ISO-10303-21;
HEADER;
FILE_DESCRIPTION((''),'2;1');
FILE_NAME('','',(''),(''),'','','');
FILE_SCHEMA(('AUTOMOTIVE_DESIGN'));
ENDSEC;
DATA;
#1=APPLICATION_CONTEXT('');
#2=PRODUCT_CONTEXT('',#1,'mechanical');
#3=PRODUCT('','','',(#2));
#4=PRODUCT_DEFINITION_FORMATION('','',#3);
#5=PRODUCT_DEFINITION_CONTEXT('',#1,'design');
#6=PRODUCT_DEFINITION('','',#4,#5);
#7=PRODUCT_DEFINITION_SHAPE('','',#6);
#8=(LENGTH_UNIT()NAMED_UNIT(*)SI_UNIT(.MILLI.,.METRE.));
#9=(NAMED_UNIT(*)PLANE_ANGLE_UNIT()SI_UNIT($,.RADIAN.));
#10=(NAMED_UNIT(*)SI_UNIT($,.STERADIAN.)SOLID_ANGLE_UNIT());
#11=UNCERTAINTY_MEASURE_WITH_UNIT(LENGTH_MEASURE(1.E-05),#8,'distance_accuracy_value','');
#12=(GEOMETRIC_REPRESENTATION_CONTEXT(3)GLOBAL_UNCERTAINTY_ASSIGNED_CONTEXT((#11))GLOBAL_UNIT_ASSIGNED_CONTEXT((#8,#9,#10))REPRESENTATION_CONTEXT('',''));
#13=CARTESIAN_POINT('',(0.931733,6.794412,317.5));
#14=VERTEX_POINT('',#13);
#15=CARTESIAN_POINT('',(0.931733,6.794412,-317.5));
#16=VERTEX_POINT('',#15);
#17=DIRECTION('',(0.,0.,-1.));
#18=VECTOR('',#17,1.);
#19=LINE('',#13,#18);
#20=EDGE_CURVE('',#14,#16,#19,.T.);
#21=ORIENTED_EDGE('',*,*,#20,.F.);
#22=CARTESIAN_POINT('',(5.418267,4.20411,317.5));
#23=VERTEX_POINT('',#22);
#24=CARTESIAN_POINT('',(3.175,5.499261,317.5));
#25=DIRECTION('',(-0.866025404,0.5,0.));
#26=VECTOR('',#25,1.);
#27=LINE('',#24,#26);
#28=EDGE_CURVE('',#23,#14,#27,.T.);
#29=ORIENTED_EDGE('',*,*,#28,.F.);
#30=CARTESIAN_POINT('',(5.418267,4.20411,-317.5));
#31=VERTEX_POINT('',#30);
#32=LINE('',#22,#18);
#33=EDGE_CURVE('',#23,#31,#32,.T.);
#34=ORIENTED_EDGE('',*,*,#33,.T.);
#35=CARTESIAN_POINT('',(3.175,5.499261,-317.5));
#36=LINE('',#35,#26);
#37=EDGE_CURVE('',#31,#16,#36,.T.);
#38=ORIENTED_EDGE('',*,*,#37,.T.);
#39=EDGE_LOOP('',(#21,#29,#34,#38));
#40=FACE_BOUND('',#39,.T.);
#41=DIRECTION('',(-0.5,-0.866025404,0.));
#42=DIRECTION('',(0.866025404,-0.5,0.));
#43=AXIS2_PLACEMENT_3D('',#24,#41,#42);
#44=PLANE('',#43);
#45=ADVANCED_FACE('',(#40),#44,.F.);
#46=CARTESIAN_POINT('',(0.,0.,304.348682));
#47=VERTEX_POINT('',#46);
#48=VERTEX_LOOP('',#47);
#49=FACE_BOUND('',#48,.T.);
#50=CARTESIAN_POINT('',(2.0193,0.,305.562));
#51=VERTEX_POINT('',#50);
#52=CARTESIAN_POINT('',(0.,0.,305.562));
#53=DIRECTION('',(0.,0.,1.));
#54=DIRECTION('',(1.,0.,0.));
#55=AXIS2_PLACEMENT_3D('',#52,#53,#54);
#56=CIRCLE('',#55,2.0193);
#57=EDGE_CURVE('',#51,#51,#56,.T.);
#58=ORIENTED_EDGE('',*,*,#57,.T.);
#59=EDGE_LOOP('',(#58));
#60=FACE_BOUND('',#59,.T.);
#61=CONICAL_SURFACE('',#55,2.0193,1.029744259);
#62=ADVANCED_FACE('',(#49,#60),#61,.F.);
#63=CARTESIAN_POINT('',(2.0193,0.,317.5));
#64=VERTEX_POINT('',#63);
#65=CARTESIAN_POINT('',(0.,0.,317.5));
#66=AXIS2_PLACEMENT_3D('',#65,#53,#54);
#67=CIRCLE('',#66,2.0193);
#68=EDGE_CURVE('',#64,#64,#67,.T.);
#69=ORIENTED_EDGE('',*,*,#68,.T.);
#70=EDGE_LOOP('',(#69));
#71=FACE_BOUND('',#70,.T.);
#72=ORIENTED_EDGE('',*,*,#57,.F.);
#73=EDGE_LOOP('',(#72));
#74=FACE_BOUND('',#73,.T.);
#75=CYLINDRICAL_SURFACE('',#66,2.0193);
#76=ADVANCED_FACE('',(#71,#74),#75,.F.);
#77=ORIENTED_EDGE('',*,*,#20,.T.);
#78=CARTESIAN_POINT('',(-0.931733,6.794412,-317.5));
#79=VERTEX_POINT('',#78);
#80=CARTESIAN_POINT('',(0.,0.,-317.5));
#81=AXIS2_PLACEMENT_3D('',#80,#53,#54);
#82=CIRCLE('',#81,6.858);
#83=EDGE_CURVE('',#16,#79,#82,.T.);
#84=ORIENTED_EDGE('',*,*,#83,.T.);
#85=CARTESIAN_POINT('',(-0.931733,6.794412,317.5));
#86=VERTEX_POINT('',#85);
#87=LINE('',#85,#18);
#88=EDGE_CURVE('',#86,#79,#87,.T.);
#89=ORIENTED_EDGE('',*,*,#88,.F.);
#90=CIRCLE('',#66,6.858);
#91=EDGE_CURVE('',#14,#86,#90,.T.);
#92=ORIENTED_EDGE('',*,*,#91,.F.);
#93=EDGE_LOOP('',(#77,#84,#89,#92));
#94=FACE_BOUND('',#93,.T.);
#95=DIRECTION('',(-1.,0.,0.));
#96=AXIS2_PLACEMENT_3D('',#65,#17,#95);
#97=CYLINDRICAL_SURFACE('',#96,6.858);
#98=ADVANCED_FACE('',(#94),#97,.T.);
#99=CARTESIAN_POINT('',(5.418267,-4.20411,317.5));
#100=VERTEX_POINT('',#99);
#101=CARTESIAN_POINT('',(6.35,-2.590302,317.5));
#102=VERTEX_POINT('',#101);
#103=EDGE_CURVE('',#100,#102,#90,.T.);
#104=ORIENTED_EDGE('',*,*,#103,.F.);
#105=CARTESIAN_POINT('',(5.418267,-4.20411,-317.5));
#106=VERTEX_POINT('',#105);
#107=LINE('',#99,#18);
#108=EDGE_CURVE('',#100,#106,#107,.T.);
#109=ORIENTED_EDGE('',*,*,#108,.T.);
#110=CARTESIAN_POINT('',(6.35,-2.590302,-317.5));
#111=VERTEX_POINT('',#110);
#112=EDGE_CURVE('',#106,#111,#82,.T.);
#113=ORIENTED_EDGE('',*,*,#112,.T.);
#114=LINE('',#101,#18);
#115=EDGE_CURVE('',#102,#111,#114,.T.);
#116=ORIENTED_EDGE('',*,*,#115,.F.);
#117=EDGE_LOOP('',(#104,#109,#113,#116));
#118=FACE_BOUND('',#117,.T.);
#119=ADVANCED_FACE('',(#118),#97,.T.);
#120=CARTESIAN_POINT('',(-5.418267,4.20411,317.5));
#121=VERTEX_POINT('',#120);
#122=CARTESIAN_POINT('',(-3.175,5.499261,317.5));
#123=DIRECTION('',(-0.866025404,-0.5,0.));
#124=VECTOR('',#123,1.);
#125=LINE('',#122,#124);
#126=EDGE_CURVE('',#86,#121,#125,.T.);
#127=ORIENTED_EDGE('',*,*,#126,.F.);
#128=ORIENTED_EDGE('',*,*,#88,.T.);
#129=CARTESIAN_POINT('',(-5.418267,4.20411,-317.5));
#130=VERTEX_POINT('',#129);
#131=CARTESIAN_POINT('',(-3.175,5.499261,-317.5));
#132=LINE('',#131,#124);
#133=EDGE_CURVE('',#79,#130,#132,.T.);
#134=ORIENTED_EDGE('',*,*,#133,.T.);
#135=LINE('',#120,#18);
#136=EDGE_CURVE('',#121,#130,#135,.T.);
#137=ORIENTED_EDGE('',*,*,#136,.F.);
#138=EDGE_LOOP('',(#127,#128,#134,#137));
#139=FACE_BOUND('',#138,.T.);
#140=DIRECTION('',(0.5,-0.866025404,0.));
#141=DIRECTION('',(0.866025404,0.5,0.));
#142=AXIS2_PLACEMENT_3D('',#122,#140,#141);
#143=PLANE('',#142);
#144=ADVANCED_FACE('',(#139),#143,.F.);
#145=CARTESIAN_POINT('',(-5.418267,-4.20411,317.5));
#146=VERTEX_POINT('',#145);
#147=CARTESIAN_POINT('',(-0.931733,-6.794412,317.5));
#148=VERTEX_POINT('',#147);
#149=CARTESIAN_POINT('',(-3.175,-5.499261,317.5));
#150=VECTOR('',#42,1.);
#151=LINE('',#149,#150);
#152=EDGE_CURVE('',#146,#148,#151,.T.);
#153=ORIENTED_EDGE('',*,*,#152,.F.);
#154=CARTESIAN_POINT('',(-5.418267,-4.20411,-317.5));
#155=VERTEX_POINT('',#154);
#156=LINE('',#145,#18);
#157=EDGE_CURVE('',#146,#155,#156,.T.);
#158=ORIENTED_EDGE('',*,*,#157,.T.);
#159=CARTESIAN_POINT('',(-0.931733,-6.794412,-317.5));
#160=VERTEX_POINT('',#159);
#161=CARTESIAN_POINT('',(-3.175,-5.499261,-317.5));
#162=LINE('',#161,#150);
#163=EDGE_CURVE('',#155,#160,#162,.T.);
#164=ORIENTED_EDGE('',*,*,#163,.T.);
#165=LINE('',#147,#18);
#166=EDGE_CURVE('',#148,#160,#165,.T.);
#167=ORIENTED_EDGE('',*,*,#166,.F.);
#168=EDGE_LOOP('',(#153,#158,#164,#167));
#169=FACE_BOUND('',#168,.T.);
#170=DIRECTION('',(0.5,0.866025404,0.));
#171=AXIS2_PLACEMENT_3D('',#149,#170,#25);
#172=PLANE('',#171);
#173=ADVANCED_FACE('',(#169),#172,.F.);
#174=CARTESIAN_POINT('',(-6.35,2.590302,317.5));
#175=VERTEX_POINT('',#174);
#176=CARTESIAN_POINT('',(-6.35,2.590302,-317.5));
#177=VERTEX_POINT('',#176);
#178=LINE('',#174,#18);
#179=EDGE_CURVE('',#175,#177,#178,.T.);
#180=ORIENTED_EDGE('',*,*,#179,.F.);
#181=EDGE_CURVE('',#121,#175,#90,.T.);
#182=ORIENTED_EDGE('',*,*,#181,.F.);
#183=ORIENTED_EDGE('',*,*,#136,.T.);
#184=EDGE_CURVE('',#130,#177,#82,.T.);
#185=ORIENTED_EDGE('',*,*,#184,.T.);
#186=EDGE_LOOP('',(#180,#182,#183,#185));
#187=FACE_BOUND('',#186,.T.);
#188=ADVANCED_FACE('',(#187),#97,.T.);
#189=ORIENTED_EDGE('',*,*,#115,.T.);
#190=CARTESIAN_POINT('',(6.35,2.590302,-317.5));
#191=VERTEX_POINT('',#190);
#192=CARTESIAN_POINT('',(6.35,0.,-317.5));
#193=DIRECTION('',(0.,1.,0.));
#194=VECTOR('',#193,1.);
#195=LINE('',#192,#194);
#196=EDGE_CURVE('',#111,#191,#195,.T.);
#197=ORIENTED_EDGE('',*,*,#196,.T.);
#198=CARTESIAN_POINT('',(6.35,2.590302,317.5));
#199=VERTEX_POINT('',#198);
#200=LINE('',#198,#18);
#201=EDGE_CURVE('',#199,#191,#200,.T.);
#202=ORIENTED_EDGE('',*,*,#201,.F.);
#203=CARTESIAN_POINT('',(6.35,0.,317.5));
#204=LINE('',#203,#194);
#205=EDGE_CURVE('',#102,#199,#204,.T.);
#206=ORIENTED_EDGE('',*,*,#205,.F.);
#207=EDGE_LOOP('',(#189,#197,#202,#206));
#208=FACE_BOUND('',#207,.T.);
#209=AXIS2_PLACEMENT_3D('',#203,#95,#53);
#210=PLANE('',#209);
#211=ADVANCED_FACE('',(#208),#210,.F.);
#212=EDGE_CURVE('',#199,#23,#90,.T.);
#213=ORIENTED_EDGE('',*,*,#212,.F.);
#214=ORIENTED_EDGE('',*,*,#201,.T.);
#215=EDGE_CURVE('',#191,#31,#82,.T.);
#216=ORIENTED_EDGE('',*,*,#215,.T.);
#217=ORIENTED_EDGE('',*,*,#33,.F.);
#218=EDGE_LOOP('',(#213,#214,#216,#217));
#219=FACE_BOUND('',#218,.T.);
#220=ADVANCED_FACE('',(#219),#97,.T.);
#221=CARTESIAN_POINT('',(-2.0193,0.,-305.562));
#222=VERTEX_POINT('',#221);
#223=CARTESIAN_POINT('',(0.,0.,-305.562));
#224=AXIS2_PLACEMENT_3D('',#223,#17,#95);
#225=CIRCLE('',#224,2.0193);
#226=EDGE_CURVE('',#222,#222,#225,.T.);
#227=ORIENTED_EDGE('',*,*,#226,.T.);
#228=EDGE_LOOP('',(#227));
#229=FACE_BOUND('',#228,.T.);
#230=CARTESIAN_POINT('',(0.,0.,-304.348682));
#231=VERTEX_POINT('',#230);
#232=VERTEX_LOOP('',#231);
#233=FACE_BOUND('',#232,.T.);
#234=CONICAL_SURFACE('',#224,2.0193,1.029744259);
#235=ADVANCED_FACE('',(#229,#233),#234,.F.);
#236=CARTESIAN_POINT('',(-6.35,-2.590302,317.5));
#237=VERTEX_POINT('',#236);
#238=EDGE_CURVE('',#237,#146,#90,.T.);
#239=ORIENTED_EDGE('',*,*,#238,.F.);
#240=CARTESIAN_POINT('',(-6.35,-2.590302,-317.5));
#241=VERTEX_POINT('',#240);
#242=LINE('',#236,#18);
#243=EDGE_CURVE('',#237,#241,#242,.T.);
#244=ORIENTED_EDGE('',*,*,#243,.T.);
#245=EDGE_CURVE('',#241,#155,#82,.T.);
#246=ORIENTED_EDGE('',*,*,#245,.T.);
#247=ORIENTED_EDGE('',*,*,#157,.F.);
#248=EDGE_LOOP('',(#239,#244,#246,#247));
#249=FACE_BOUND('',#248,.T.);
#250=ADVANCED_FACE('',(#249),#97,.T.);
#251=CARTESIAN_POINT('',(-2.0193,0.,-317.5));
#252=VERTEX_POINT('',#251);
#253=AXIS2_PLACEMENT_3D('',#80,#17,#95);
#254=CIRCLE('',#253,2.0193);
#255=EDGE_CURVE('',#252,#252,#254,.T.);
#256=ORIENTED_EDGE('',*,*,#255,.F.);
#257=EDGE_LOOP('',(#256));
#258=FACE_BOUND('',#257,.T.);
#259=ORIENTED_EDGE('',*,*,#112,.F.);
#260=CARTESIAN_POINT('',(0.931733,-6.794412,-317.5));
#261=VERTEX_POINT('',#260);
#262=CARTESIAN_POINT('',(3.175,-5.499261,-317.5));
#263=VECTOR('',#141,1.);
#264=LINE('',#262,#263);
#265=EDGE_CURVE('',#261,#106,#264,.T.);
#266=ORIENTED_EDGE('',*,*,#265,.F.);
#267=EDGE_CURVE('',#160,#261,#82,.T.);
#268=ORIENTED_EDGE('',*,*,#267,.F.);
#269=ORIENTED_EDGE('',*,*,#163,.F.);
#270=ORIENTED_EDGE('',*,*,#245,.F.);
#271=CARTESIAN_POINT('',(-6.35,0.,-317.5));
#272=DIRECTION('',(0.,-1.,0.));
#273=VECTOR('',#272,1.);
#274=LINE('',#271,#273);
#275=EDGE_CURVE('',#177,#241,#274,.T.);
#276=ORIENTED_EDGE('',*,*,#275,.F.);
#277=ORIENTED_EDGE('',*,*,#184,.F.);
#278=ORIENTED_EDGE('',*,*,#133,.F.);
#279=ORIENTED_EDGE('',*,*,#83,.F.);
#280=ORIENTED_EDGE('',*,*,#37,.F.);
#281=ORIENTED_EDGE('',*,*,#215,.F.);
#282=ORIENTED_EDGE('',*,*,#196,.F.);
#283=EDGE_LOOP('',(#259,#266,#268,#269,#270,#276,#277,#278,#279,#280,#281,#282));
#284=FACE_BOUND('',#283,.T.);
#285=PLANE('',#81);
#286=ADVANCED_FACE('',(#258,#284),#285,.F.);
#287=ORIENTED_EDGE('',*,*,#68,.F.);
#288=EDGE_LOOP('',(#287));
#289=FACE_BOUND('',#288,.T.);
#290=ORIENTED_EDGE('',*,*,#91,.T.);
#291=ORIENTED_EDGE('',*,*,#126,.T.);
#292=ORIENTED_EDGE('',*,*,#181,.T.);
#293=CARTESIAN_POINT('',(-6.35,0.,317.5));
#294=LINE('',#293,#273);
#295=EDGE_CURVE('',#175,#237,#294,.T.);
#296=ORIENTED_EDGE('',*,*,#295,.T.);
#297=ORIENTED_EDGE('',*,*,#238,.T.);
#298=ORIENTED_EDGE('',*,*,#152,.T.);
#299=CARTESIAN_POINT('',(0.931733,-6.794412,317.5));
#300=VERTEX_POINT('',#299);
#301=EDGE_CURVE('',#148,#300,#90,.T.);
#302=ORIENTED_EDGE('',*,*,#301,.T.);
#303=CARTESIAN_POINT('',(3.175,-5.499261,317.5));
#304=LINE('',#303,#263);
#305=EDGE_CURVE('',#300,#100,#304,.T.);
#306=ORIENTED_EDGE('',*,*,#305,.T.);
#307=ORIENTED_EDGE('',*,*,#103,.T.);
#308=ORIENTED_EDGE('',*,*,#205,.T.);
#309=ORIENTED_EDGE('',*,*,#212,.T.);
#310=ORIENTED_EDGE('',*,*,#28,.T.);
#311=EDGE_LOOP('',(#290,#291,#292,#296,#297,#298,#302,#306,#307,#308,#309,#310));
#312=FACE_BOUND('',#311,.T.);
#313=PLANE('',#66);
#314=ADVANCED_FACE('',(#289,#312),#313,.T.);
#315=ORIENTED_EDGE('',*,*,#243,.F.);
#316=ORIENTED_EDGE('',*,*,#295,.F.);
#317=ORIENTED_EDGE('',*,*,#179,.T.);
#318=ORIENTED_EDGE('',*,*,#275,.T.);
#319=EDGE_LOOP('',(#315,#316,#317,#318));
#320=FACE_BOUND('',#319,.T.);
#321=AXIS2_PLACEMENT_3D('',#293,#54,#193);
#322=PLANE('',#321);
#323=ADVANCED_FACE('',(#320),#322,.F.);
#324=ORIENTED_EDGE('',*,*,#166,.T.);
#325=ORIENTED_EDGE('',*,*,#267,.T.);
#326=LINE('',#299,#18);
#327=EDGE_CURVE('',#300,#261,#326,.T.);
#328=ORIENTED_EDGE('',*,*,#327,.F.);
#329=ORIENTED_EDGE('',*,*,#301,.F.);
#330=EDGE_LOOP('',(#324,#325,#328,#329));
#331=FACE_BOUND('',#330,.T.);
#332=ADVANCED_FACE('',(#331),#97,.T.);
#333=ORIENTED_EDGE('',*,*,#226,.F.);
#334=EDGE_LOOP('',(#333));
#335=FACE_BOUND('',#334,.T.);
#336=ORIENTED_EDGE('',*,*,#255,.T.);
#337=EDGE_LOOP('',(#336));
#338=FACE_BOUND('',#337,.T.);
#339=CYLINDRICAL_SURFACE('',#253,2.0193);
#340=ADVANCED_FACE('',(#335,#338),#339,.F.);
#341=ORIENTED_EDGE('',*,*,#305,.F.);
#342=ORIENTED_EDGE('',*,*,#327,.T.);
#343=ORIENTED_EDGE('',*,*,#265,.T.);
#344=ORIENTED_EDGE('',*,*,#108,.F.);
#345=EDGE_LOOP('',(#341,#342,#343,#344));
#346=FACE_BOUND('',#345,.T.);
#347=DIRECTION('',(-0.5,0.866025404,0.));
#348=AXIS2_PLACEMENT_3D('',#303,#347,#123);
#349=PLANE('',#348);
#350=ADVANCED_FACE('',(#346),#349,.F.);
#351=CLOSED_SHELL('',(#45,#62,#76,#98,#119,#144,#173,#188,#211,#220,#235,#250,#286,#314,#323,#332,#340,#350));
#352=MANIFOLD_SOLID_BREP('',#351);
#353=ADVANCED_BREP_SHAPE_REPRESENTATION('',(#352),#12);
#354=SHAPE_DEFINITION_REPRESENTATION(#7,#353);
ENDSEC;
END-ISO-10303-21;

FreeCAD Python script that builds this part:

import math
import FreeCAD as App
import Part
import Sketcher
Q = App.Units.Quantity

doc = App.newDocument("Part")
params = doc.addObject("Spreadsheet::Sheet", "Params")
for row, (alias, value) in enumerate([
    ("sketch1_radius", "0.27 in"),
    ("pad1_length", "25 in"),
    ("sketch2_diameter", "0.159 in"),
    ("hole_diameter", "0.159 in"),
    ("hole_depth", "0.47 in"),
    ("sketch3_diameter", "0.159 in"),
    ("hole2_diameter", "0.159 in"),
    ("hole2_depth", "0.47 in"),
], start=1):
    params.set(f"A{row}", alias)
    params.set(f"B{row}", "=" + value)
    params.setAlias(f"B{row}", alias)

body = doc.addObject("PartDesign::Body", "Body")

# Sketch on XY plane
sketch1 = body.newObject("Sketcher::SketchObject", "Sketch")
sketch1.AttachmentSupport = (doc.getObject("XY_Plane"), [""])
sketch1.MapMode = "FlatFace"
sketch1.addGeometry([
    Part.ArcOfCircle(Part.Circle(App.Vector(0, 0, 0), App.Vector(0, 0, 1), 6.9), math.radians(82.19), math.radians(97.81)),  # 0
    Part.LineSegment(App.Vector(-0.9, 6.8, 0), App.Vector(-5.4, 4.2, 0)),  # 1
    Part.ArcOfCircle(Part.Circle(App.Vector(0, 0, 0), App.Vector(0, 0, 1), 6.9), math.radians(142.19), math.radians(157.81)),  # 2
    Part.LineSegment(App.Vector(-6.3, 2.6, 0), App.Vector(-6.3, -2.6, 0)),  # 3
    Part.ArcOfCircle(Part.Circle(App.Vector(0, 0, 0), App.Vector(0, 0, 1), 6.9), math.radians(-157.81), math.radians(-142.19)),  # 4
    Part.LineSegment(App.Vector(-5.4, -4.2, 0), App.Vector(-0.9, -6.8, 0)),  # 5
    Part.ArcOfCircle(Part.Circle(App.Vector(0, 0, 0), App.Vector(0, 0, 1), 6.9), math.radians(-97.81), math.radians(-82.19)),  # 6
    Part.LineSegment(App.Vector(0.9, -6.8, 0), App.Vector(5.4, -4.2, 0)),  # 7
    Part.ArcOfCircle(Part.Circle(App.Vector(0, 0, 0), App.Vector(0, 0, 1), 6.9), math.radians(-37.81), math.radians(-22.19)),  # 8
    Part.LineSegment(App.Vector(6.3, -2.6, 0), App.Vector(6.3, 2.6, 0)),  # 9
    Part.ArcOfCircle(Part.Circle(App.Vector(0, 0, 0), App.Vector(0, 0, 1), 6.9), math.radians(22.19), math.radians(37.81)),  # 10
    Part.LineSegment(App.Vector(5.4, 4.2, 0), App.Vector(0.9, 6.8, 0)),  # 11
], False)
sketch1.addConstraint([
    Sketcher.Constraint("Coincident", 0, 2, 1, 1),
    Sketcher.Constraint("Coincident", 1, 2, 2, 1),
    Sketcher.Constraint("Coincident", 2, 2, 3, 1),
    Sketcher.Constraint("Coincident", 3, 2, 4, 1),
    Sketcher.Constraint("Coincident", 4, 2, 5, 1),
    Sketcher.Constraint("Coincident", 5, 2, 6, 1),
    Sketcher.Constraint("Coincident", 6, 2, 7, 1),
    Sketcher.Constraint("Coincident", 7, 2, 8, 1),
    Sketcher.Constraint("Coincident", 8, 2, 9, 1),
    Sketcher.Constraint("Coincident", 9, 2, 10, 1),
    Sketcher.Constraint("Coincident", 10, 2, 11, 1),
    Sketcher.Constraint("Coincident", 11, 2, 0, 1),
    Sketcher.Constraint("Vertical", 3),
    Sketcher.Constraint("Vertical", 9),
    Sketcher.Constraint("Coincident", 0, 3, -1, 1),
    Sketcher.Constraint("Coincident", 2, 3, -1, 1),
    Sketcher.Constraint("Coincident", 4, 3, -1, 1),
    Sketcher.Constraint("Coincident", 6, 3, -1, 1),
    Sketcher.Constraint("Coincident", 8, 3, -1, 1),
    Sketcher.Constraint("Coincident", 10, 3, -1, 1),
    Sketcher.Constraint("Equal", 0, 2),
    Sketcher.Constraint("Equal", 2, 4),
    Sketcher.Constraint("Equal", 4, 6),
    Sketcher.Constraint("Equal", 6, 8),
    Sketcher.Constraint("Equal", 8, 10),
    Sketcher.Constraint("Parallel", 1, 7),
    Sketcher.Constraint("Parallel", 5, 11),
    Sketcher.Constraint("Horizontal", 5, 2, 6, 2),
    Sketcher.Constraint("Horizontal", 4, 2, 7, 2),
    Sketcher.Constraint("Horizontal", 3, 2, 8, 2),
    Sketcher.Constraint("Horizontal", 1, 2, 10, 2),
    Sketcher.Constraint("Vertical", 1, 2, 4, 2),
    Sketcher.Constraint("Radius", 0, Q("0.27 in")),
    Sketcher.Constraint("Angle", 1, Q("-150 deg")),
    Sketcher.Constraint("DistanceX", 2, 2, -1, 1, Q("0.25 in")),
    Sketcher.Constraint("DistanceX", 4, 2, 6, 2, Q("0.25 in")),
])
sketch1.setExpression("Constraints[32]", "Params.sketch1_radius")
pad1 = body.newObject("PartDesign::Pad", "Pad")
pad1.Profile = sketch1
pad1.setExpression("Length", "Params.pad1_length")
pad1.Midplane = True

# Sketch on XY plane
sketch2 = body.newObject("Sketcher::SketchObject", "Sketch001")
sketch2.AttachmentSupport = (doc.getObject("XY_Plane"), [""])
sketch2.MapMode = "FlatFace"
sketch2.AttachmentOffset = App.Placement(App.Vector(0, 0, 12.5 * 25.4), App.Rotation())
sketch2.addGeometry(Part.Circle(App.Vector(0, 0, 0), App.Vector(0, 0, 1), 2), False)
sketch2.addConstraint([
    Sketcher.Constraint("Coincident", 0, 3, -1, 1),
    Sketcher.Constraint("Diameter", 0, Q("0.159 in")),
])
sketch2.setExpression("Constraints[1]", "Params.sketch2_diameter")
doc.recompute()
hole = body.newObject("PartDesign::Hole", "Hole")
hole.Profile = sketch2
hole.ThreadType = "None"
hole.setExpression("Diameter", "Params.hole_diameter")
hole.DepthType = "Dimension"
hole.setExpression("Depth", "Params.hole_depth")
hole.DrillPoint = "Angled"
hole.DrillPointAngle = 118

# Sketch on XY plane
sketch3 = body.newObject("Sketcher::SketchObject", "Sketch002")
sketch3.AttachmentSupport = (doc.getObject("XY_Plane"), [""])
sketch3.MapMode = "FlatFace"
sketch3.AttachmentOffset = App.Placement(App.Vector(0, 0, -12.5 * 25.4), App.Rotation())
sketch3.addGeometry(Part.Circle(App.Vector(0, 0, 0), App.Vector(0, 0, 1), 2), False)
sketch3.addConstraint([
    Sketcher.Constraint("Coincident", 0, 3, -1, 1),
    Sketcher.Constraint("Diameter", 0, Q("0.159 in")),
])
sketch3.setExpression("Constraints[1]", "Params.sketch3_diameter")
doc.recompute()
hole2 = body.newObject("PartDesign::Hole", "Hole001")
hole2.Profile = sketch3
hole2.ThreadType = "None"
hole2.setExpression("Diameter", "Params.hole2_diameter")
hole2.DepthType = "Dimension"
hole2.setExpression("Depth", "Params.hole2_depth")
hole2.DrillPoint = "Angled"
hole2.DrillPointAngle = 118
hole2.Reversed = True

doc.recompute()
